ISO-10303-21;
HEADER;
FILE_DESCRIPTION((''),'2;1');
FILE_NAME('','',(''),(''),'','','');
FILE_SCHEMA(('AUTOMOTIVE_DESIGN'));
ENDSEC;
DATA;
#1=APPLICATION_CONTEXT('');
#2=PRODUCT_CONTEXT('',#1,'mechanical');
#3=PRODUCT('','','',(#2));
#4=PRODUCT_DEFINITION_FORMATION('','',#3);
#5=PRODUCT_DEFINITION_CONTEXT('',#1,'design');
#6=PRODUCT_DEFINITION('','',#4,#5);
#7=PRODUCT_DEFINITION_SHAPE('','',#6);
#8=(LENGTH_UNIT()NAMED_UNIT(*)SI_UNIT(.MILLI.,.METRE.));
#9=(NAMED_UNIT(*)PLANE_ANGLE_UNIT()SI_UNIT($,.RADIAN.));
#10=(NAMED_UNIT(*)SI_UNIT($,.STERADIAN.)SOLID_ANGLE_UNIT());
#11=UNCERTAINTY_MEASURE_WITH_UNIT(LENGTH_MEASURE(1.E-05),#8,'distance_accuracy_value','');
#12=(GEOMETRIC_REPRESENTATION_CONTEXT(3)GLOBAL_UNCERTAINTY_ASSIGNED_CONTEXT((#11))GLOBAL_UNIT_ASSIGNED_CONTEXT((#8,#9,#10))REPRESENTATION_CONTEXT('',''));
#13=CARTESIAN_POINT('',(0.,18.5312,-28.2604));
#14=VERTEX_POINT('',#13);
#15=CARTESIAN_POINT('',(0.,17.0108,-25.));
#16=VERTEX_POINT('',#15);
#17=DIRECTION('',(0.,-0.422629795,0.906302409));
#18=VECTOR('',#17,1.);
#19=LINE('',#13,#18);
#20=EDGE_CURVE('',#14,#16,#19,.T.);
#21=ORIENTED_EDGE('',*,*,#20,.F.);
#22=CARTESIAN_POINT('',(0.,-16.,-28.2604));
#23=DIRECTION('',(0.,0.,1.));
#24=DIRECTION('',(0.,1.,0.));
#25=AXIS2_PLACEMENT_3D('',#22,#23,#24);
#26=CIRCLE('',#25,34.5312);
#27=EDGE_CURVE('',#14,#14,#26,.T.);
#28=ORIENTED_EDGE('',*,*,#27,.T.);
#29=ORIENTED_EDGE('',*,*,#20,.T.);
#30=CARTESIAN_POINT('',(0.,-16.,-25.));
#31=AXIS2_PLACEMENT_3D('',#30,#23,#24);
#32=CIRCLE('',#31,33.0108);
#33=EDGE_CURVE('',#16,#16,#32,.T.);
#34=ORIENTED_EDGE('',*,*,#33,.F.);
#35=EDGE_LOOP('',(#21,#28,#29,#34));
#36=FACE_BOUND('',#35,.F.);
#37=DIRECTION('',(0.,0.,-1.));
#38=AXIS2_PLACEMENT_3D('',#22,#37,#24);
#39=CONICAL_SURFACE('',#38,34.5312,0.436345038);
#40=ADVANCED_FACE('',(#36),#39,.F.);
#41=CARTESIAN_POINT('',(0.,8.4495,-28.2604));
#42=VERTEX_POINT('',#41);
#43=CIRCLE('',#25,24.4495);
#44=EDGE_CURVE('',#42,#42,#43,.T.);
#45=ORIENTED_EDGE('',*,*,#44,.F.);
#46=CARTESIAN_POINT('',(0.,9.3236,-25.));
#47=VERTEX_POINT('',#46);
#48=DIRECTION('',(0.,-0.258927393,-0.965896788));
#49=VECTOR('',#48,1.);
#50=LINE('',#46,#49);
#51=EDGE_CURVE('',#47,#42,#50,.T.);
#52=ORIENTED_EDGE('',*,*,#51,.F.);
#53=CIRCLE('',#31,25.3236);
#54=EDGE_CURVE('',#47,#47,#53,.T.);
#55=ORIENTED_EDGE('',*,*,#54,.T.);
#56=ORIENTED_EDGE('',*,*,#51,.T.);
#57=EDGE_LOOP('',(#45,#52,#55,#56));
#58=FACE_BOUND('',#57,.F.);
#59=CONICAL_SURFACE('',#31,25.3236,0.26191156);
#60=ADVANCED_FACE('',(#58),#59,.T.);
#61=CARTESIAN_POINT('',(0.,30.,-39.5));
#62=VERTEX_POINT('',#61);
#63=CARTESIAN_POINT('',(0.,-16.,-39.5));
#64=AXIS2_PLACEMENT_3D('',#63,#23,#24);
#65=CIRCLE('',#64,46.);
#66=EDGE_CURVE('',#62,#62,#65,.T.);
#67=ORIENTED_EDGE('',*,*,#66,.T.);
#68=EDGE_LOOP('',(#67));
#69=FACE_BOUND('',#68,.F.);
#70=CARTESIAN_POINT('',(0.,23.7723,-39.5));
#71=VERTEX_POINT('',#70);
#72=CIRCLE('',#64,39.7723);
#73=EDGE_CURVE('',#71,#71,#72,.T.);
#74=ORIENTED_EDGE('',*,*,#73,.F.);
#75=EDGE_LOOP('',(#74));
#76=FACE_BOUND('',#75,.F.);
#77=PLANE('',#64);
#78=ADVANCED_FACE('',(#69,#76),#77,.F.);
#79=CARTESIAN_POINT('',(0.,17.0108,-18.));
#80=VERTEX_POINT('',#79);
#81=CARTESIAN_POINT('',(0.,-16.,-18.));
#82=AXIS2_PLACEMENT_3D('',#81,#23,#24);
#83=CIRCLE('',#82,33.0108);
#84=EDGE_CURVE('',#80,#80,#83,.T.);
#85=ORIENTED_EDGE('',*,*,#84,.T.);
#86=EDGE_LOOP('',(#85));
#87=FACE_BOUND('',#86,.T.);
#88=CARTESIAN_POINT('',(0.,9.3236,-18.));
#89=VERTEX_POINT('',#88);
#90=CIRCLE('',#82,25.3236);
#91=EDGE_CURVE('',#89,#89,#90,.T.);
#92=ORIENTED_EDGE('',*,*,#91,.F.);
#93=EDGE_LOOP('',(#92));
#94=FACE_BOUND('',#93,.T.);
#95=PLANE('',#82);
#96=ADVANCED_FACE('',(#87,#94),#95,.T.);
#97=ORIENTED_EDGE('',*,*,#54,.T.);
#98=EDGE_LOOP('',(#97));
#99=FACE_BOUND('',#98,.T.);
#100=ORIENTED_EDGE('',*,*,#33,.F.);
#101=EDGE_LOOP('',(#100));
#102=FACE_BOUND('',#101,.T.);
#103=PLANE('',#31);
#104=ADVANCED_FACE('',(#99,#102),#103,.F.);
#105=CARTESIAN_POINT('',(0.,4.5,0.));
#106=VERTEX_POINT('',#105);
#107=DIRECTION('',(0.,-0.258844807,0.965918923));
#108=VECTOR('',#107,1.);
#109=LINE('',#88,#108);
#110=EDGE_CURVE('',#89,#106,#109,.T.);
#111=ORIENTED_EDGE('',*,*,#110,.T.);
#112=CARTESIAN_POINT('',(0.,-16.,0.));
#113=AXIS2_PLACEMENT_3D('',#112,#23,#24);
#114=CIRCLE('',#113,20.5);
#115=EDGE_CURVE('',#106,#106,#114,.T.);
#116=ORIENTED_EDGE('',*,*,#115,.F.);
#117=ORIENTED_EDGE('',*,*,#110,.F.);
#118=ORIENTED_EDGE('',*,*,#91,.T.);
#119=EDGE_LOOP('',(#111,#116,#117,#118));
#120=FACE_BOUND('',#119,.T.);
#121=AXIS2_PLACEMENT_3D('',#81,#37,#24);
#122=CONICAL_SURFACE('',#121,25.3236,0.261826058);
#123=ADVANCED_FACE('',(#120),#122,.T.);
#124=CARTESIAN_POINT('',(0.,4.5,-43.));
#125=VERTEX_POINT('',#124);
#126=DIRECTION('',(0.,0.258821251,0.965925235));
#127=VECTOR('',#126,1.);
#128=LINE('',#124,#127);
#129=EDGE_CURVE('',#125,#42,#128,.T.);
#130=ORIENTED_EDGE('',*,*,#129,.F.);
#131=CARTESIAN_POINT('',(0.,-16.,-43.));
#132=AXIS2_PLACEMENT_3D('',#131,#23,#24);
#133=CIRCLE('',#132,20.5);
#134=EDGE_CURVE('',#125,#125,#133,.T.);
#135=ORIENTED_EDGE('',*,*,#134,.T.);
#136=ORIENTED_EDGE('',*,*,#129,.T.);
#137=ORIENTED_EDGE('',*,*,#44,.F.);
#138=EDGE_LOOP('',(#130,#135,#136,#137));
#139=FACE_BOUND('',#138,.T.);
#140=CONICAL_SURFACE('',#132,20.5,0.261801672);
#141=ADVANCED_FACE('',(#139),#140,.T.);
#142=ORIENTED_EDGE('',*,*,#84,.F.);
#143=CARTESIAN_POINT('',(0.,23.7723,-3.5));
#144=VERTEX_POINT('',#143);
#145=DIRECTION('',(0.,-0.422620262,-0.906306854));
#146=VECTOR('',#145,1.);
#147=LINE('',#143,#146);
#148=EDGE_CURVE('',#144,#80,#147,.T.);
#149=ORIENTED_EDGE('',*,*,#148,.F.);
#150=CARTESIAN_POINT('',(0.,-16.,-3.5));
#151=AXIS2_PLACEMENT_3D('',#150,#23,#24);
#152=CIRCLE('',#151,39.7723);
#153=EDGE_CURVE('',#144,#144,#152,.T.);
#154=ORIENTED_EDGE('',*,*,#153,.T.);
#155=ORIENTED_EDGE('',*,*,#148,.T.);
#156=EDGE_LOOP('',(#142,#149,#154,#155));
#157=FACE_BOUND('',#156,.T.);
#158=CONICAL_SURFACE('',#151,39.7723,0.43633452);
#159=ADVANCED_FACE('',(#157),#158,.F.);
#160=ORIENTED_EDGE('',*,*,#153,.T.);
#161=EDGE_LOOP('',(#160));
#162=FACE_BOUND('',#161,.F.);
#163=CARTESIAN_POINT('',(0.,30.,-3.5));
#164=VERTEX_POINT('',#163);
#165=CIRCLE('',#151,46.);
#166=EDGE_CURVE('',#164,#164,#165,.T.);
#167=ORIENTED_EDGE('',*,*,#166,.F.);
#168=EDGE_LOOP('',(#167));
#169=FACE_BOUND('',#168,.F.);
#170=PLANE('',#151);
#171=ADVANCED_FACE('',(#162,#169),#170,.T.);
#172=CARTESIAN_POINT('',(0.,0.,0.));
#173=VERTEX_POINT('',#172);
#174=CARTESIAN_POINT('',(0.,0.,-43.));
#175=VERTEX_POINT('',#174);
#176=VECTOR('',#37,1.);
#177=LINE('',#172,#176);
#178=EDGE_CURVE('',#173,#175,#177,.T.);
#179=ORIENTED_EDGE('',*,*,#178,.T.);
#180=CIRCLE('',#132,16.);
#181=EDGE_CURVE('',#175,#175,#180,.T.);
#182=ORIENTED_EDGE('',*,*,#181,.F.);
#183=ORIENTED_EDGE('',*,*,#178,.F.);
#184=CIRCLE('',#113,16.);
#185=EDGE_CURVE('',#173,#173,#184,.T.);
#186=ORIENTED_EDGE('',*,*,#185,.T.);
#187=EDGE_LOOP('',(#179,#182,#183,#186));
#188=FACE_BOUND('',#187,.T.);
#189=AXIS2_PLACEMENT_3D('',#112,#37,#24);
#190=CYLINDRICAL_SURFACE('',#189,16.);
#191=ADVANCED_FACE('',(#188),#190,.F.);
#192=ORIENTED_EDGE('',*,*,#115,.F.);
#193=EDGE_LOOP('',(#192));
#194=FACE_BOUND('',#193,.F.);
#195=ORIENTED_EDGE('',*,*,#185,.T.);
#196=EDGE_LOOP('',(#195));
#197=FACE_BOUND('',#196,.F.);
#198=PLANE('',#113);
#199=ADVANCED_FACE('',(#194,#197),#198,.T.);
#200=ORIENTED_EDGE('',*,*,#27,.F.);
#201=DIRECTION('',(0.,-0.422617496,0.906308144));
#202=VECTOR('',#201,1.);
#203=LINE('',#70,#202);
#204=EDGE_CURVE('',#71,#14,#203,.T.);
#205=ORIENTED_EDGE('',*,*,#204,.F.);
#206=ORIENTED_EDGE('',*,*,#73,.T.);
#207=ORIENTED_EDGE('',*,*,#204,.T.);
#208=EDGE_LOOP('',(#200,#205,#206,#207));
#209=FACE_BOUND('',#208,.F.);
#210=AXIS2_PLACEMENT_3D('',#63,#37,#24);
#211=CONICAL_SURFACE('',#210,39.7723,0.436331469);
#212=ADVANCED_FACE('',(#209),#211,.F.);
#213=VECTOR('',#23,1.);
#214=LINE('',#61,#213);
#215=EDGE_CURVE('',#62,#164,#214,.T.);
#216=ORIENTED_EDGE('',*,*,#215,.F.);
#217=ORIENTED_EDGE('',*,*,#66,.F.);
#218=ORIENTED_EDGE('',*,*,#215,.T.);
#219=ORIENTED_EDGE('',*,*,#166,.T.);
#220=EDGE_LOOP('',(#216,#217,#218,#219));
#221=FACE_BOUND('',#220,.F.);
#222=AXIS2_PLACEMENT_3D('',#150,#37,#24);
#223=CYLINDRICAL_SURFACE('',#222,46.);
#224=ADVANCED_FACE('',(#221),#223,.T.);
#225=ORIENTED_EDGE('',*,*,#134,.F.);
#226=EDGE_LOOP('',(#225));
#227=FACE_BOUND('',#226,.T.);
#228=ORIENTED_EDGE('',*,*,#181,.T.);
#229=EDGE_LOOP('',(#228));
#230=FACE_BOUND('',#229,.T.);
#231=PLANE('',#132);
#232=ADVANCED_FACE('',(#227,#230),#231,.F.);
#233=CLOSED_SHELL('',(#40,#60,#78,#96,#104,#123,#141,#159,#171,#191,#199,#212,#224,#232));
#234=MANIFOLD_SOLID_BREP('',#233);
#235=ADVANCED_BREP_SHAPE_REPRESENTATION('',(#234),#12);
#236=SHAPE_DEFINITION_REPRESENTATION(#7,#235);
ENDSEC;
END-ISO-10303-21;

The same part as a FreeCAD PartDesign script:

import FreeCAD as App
import Part
import Sketcher
Q = App.Units.Quantity


def add_polygon(sketch, points):
    """Adds a closed chain of lines whose ends are joined by coincident constraints."""
    first, n = sketch.GeometryCount, len(points)
    for a, b in zip(points, points[1:] + points[:1]):
        sketch.addGeometry(Part.LineSegment(App.Vector(*a, 0), App.Vector(*b, 0)), False)
    for i in range(n):
        sketch.addConstraint(Sketcher.Constraint("Coincident", first + i, 2, first + (i + 1) % n, 1))

doc = App.newDocument("Part")
params = doc.addObject("Spreadsheet::Sheet", "Params")
for row, (alias, value) in enumerate([
    ("sketch1_height", "43 mm"),
    ("sketch1_height2", "36 mm"),
    ("sketch1_width", "4.5 mm"),
    ("revolution_angle", "360 deg"),
], start=1):
    params.set(f"A{row}", alias)
    params.set(f"B{row}", "=" + value)
    params.setAlias(f"B{row}", alias)

body = doc.addObject("PartDesign::Body", "Body")

# Sketch on YZ plane
sketch1 = body.newObject("Sketcher::SketchObject", "Sketch")
sketch1.AttachmentSupport = (doc.getObject("YZ_Plane"), [""])
sketch1.MapMode = "FlatFace"
add_polygon(sketch1, [(4.5, 0), (0, 0), (0, -43), (4.5, -43), (8.4, -28.3), (9.3, -25), (17, -25), (18.5, -28.3), (23.8, -39.5), (30, -39.5), (30, -3.5), (23.8, -3.5), (17, -18), (9.3, -18)])  # lines 0-13
sketch1.addGeometry(Part.LineSegment(App.Vector(-16, -43, 0), App.Vector(-16, 0, 0)), True)  # axis
sketch1.addConstraint(Sketcher.Constraint("Horizontal", 0))
sketch1.addConstraint(Sketcher.Constraint("Vertical", 1))
sketch1.addConstraint(Sketcher.Constraint("Horizontal", 2))
sketch1.addConstraint(Sketcher.Constraint("Horizontal", 5))
sketch1.addConstraint(Sketcher.Constraint("Horizontal", 8))
sketch1.addConstraint(Sketcher.Constraint("Vertical", 9))
sketch1.addConstraint(Sketcher.Constraint("Horizontal", 10))
sketch1.addConstraint(Sketcher.Constraint("Horizontal", 12))
sketch1.addConstraint(Sketcher.Constraint("Vertical", 14))
sketch1.addConstraint(Sketcher.Constraint("Coincident", 0, 2, -1, 1))
sketch1.addConstraint(Sketcher.Constraint("PointOnObject", 14, 2, -1))
sketch1.addConstraint(Sketcher.Constraint("Parallel", 3, 4))
sketch1.addConstraint(Sketcher.Constraint("Parallel", 6, 7))
sketch1.addConstraint(Sketcher.Constraint("Horizontal", 3, 2, 6, 2))
sketch1.addConstraint(Sketcher.Constraint("Horizontal", 2, 2, 14, 1))
sketch1.addConstraint(Sketcher.Constraint("Vertical", 7, 2, 10, 2))
sketch1.addConstraint(Sketcher.Constraint("Vertical", 5, 2, 11, 2))
sketch1.addConstraint(Sketcher.Constraint("Vertical", 4, 2, 12, 2))
sketch1.addConstraint(Sketcher.Constraint("Vertical", 2, 2, 13, 2))
sketch1.addConstraint(Sketcher.Constraint("DistanceY", 1, 2, 1, 1, 43.0))
sketch1.addConstraint(Sketcher.Constraint("DistanceY", 9, 1, 9, 2, 36.0))
sketch1.addConstraint(Sketcher.Constraint("Angle", 3, Q("74.9999 deg")))
sketch1.addConstraint(Sketcher.Constraint("Angle", 11, Q("-115.0001 deg")))
sketch1.addConstraint(Sketcher.Constraint("DistanceX", 0, 2, 0, 1, 4.5))
sketch1.addConstraint(Sketcher.Constraint("DistanceY", 4, 2, -1, 1, 25.0))
sketch1.addConstraint(Sketcher.Constraint("DistanceX", -1, 1, 8, 2, 30.0))
sketch1.addConstraint(Sketcher.Constraint("DistanceX", 14, 1, -1, 1, 16.0))
sketch1.addConstraint(Sketcher.Constraint("DistanceY", 5, 2, 11, 2, 7.0))
sketch1.addConstraint(Sketcher.Constraint("DistanceY", 9, 2, -1, 1, 3.5))
sketch1.addConstraint(Sketcher.Constraint("DistanceX", 5, 1, 5, 2, 7.6872))
sketch1.addConstraint(Sketcher.Constraint("DistanceX", 3, 2, 4, 2, 0.874))
sketch1.setExpression("Constraints[33]", "Params.sketch1_height")
sketch1.setExpression("Constraints[34]", "Params.sketch1_height2")
sketch1.setExpression("Constraints[37]", "Params.sketch1_width")
revolution = body.newObject("PartDesign::Revolution", "Revolution")
revolution.Profile = sketch1
revolution.ReferenceAxis = (sketch1, ["Axis0"])
revolution.setExpression("Angle", "Params.revolution_angle")

doc.recompute()
